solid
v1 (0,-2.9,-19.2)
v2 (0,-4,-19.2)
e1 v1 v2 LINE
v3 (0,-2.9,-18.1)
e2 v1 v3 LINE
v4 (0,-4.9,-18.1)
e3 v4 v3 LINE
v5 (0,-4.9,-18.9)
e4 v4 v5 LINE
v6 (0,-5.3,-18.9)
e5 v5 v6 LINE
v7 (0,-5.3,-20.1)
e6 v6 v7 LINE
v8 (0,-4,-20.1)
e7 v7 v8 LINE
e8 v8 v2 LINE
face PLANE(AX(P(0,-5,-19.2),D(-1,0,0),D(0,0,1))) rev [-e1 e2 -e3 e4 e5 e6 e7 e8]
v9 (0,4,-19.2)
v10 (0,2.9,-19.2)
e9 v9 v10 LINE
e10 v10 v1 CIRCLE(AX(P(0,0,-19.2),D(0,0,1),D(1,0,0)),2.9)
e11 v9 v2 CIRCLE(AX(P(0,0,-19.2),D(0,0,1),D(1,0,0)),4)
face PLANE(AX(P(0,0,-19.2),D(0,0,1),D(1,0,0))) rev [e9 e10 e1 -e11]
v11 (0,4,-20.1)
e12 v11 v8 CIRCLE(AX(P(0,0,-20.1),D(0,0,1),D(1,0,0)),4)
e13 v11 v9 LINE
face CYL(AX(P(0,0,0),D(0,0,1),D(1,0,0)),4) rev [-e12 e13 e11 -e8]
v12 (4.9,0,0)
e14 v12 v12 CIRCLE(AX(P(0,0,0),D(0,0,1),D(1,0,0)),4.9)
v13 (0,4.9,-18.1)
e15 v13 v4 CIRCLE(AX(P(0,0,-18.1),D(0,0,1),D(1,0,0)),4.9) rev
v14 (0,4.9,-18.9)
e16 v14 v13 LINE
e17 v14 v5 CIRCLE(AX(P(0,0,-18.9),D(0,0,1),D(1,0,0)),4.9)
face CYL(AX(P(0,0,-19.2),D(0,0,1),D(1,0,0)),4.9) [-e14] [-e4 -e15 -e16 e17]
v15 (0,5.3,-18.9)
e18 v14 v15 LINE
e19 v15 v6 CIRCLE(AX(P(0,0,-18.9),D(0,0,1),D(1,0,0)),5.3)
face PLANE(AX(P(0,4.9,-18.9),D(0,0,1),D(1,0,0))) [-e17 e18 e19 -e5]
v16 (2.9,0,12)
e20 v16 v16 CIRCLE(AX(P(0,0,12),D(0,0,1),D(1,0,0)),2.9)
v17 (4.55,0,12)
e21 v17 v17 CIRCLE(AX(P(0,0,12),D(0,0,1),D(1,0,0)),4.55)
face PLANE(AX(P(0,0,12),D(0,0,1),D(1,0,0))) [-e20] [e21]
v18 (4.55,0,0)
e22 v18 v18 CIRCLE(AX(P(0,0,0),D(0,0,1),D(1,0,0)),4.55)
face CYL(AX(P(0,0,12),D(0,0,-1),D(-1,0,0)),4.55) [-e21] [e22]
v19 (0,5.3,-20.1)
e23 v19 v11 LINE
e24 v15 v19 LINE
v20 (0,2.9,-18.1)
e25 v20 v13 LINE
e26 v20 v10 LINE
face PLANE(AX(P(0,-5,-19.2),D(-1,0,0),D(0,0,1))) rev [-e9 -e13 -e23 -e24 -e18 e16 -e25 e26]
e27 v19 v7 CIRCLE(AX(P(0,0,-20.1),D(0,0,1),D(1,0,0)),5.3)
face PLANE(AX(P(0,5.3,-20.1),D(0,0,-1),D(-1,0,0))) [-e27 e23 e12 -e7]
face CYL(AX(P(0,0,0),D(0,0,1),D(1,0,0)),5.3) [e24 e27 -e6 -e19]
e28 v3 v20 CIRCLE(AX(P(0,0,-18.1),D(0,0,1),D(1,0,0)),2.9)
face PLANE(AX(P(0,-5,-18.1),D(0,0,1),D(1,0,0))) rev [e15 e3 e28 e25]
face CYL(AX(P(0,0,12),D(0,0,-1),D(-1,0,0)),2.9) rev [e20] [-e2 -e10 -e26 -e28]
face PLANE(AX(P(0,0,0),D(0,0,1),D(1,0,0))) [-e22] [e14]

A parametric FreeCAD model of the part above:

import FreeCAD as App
import Part
import Sketcher
Q = App.Units.Quantity


def add_polygon(sketch, points):
    """Adds a closed chain of lines whose ends are joined by coincident constraints."""
    first, n = sketch.GeometryCount, len(points)
    for a, b in zip(points, points[1:] + points[:1]):
        sketch.addGeometry(Part.LineSegment(App.Vector(*a, 0), App.Vector(*b, 0)), False)
    for i in range(n):
        sketch.addConstraint(Sketcher.Constraint("Coincident", first + i, 2, first + (i + 1) % n, 1))

doc = App.newDocument("Part")
body = doc.addObject("PartDesign::Body", "Body")

sketch1 = body.newObject("Sketcher::SketchObject", "Sketch")
sketch1.AttachmentSupport = (doc.getObject("XY_Plane"), [""])
sketch1.MapMode = "FlatFace"
sketch1.addGeometry([
    Part.Circle(App.Vector(0, 0, 0), App.Vector(0, 0, 1), 4.5),
    Part.Circle(App.Vector(0, 0, 0), App.Vector(0, 0, 1), 2.9),
], False)
sketch1.addConstraint([
    Sketcher.Constraint("Coincident", 0, 3, -1, 1),
    Sketcher.Constraint("Coincident", 1, 3, -1, 1),
    Sketcher.Constraint("Diameter", 0, Q("9.1 mm")),
    Sketcher.Constraint("Diameter", 1, Q("5.8 mm")),
])
pad1 = body.newObject("PartDesign::Pad", "Pad")
pad1.Profile = sketch1
pad1.Length = 12

sketch2 = body.newObject("Sketcher::SketchObject", "Sketch001")
sketch2.AttachmentSupport = (doc.getObject("XY_Plane"), [""])
sketch2.MapMode = "FlatFace"
sketch2.AttachmentOffset = App.Placement(App.Vector(0, 0, -19.2), App.Rotation())
sketch2.addGeometry([
    Part.Circle(App.Vector(0, 0, 0), App.Vector(0, 0, 1), 4.9),
    Part.Circle(App.Vector(0, 0, 0), App.Vector(0, 0, 1), 2.9),
], False)
sketch2.addConstraint([
    Sketcher.Constraint("Coincident", 0, 3, -1, 1),
    Sketcher.Constraint("Coincident", 1, 3, -1, 1),
    Sketcher.Constraint("Diameter", 0, Q("9.8 mm")),
    Sketcher.Constraint("Diameter", 1, Q("5.8 mm")),
])
pad2 = body.newObject("PartDesign::Pad", "Pad001")
pad2.Profile = sketch2
pad2.Length = 19.2

sketch3 = body.newObject("Sketcher::SketchObject", "Sketch002")
sketch3.AttachmentSupport = (doc.getObject("XZ_Plane"), [""])
sketch3.MapMode = "FlatFace"
add_polygon(sketch3, [(0, -19.2), (0, -18.1), (6.8, -18.1), (6.8, -19.2)])
sketch3.addConstraint([
    Sketcher.Constraint("Vertical", 0),
    Sketcher.Constraint("Horizontal", 1),
    Sketcher.Constraint("Vertical", 2),
    Sketcher.Constraint("Horizontal", 3),
    Sketcher.Constraint("PointOnObject", 0, 2, -2),
    Sketcher.Constraint("DistanceY", 0, 1, 0, 2, Q("1.1 mm")),
    Sketcher.Constraint("DistanceY", 0, 2, -1, 1, Q("18.1 mm")),
    Sketcher.Constraint("DistanceX", 1, 1, 1, 2, Q("6.768136 mm")),
])
pocket1 = body.newObject("PartDesign::Pocket", "Pocket")
pocket1.Profile = sketch3
pocket1.Length = 10
pocket1.Midplane = True

sketch4 = body.newObject("Sketcher::SketchObject", "Sketch003")
sketch4.AttachmentSupport = (doc.getObject("YZ_Plane"), [""])
sketch4.MapMode = "FlatFace"
add_polygon(sketch4, [(-4.9, -19.2), (-4.9, -18.9), (-5.3, -18.9), (-5.3, -20.1), (-4, -20.1), (-4, -19.2)])
sketch4.addConstraint([
    Sketcher.Constraint("Vertical", 0),
    Sketcher.Constraint("Horizontal", 1),
    Sketcher.Constraint("Vertical", 2),
    Sketcher.Constraint("Horizontal", 3),
    Sketcher.Constraint("Vertical", 4),
    Sketcher.Constraint("Horizontal", 5),
    Sketcher.Constraint("Equal", 5, 4),
    Sketcher.Constraint("DistanceX", 1, 2, 1, 1, Q("0.4 mm")),
    Sketcher.Constraint("DistanceX", 3, 1, 3, 2, Q("1.3 mm")),
    Sketcher.Constraint("DistanceY", 0, 1, 0, 2, Q("0.3 mm")),
    Sketcher.Constraint("DistanceX", 3, 2, -1, 1, Q("4 mm")),
    Sketcher.Constraint("DistanceY", 0, 2, -1, 1, Q("18.9 mm")),
])
revolution = body.newObject("PartDesign::Revolution", "Revolution")
revolution.Profile = sketch4
revolution.ReferenceAxis = (sketch4, ["V_Axis"])
revolution.Angle = 180
revolution.Reversed = True

doc.recompute()
